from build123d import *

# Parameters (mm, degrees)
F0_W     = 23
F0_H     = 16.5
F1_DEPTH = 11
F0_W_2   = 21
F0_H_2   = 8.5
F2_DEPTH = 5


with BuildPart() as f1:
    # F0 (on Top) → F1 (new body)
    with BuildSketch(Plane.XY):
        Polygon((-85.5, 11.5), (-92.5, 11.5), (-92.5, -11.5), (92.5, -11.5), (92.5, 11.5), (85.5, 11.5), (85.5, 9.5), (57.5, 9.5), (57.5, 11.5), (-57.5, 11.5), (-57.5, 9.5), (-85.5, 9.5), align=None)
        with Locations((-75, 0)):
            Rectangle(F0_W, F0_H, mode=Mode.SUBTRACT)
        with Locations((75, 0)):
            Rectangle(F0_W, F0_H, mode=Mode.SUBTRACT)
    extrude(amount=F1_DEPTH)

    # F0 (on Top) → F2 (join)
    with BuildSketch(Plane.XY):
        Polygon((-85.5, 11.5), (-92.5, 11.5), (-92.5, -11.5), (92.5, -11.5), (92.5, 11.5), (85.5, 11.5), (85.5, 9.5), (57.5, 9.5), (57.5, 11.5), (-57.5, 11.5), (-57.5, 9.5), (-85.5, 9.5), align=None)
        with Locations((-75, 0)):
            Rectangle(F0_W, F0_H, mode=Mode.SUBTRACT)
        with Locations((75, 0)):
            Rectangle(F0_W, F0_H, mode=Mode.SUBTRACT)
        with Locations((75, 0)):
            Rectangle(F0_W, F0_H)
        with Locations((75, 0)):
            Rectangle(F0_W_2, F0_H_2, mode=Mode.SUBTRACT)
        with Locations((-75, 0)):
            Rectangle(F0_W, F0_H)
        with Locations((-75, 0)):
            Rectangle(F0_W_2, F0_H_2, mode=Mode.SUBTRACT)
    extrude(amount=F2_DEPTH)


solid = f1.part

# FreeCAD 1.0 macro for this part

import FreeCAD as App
import Part
import Sketcher

doc = App.newDocument("Part")
body = doc.addObject("PartDesign::Body", "Body")

# Sketch on XY plane
sketch1 = doc.addObject("Sketcher::SketchObject", "Sketch")
body.addObject(sketch1)
sketch1.AttachmentSupport = (doc.XY_Plane, [""])
sketch1.MapMode = "FlatFace"
sketch1.addGeometry(Part.LineSegment(App.Vector(-85.5, 11.5, 0), App.Vector(-92.5, 11.5, 0)), False)
sketch1.addGeometry(Part.LineSegment(App.Vector(-92.5, 11.5, 0), App.Vector(-92.5, -11.5, 0)), False)
sketch1.addGeometry(Part.LineSegment(App.Vector(-92.5, -11.5, 0), App.Vector(92.5, -11.5, 0)), False)
sketch1.addGeometry(Part.LineSegment(App.Vector(92.5, -11.5, 0), App.Vector(92.5, 11.5, 0)), False)
sketch1.addGeometry(Part.LineSegment(App.Vector(92.5, 11.5, 0), App.Vector(85.5, 11.5, 0)), False)
sketch1.addGeometry(Part.LineSegment(App.Vector(85.5, 11.5, 0), App.Vector(85.5, 9.5, 0)), False)
sketch1.addGeometry(Part.LineSegment(App.Vector(85.5, 9.5, 0), App.Vector(57.5, 9.5, 0)), False)
sketch1.addGeometry(Part.LineSegment(App.Vector(57.5, 9.5, 0), App.Vector(57.5, 11.5, 0)), False)
sketch1.addGeometry(Part.LineSegment(App.Vector(57.5, 11.5, 0), App.Vector(-57.5, 11.5, 0)), False)
sketch1.addGeometry(Part.LineSegment(App.Vector(-57.5, 11.5, 0), App.Vector(-57.5, 9.5, 0)), False)
sketch1.addGeometry(Part.LineSegment(App.Vector(-57.5, 9.5, 0), App.Vector(-85.5, 9.5, 0)), False)
sketch1.addGeometry(Part.LineSegment(App.Vector(-85.5, 9.5, 0), App.Vector(-85.5, 11.5, 0)), False)
sketch1.addGeometry(Part.LineSegment(App.Vector(-63.5, -8.25, 0), App.Vector(-86.5, -8.25, 0)), False)
sketch1.addGeometry(Part.LineSegment(App.Vector(-86.5, -8.25, 0), App.Vector(-86.5, 8.25, 0)), False)
sketch1.addGeometry(Part.LineSegment(App.Vector(-86.5, 8.25, 0), App.Vector(-63.5, 8.25, 0)), False)
sketch1.addGeometry(Part.LineSegment(App.Vector(-63.5, 8.25, 0), App.Vector(-63.5, -8.25, 0)), False)
sketch1.addGeometry(Part.LineSegment(App.Vector(86.5, -8.25, 0), App.Vector(63.5, -8.25, 0)), False)
sketch1.addGeometry(Part.LineSegment(App.Vector(63.5, -8.25, 0), App.Vector(63.5, 8.25, 0)), False)
sketch1.addGeometry(Part.LineSegment(App.Vector(63.5, 8.25, 0), App.Vector(86.5, 8.25, 0)), False)
sketch1.addGeometry(Part.LineSegment(App.Vector(86.5, 8.25, 0), App.Vector(86.5, -8.25, 0)), False)
sketch1.addConstraint(Sketcher.Constraint("Coincident", 0, 2, 1, 1))
sketch1.addConstraint(Sketcher.Constraint("Coincident", 1, 2, 2, 1))
sketch1.addConstraint(Sketcher.Constraint("Coincident", 2, 2, 3, 1))
sketch1.addConstraint(Sketcher.Constraint("Coincident", 3, 2, 4, 1))
sketch1.addConstraint(Sketcher.Constraint("Coincident", 4, 2, 5, 1))
sketch1.addConstraint(Sketcher.Constraint("Coincident", 5, 2, 6, 1))
sketch1.addConstraint(Sketcher.Constraint("Coincident", 6, 2, 7, 1))
sketch1.addConstraint(Sketcher.Constraint("Coincident", 7, 2, 8, 1))
sketch1.addConstraint(Sketcher.Constraint("Coincident", 8, 2, 9, 1))
sketch1.addConstraint(Sketcher.Constraint("Coincident", 9, 2, 10, 1))
sketch1.addConstraint(Sketcher.Constraint("Coincident", 10, 2, 11, 1))
sketch1.addConstraint(Sketcher.Constraint("Coincident", 11, 2, 0, 1))
sketch1.addConstraint(Sketcher.Constraint("Coincident", 12, 2, 13, 1))
sketch1.addConstraint(Sketcher.Constraint("Coincident", 13, 2, 14, 1))
sketch1.addConstraint(Sketcher.Constraint("Coincident", 14, 2, 15, 1))
sketch1.addConstraint(Sketcher.Constraint("Coincident", 15, 2, 12, 1))
sketch1.addConstraint(Sketcher.Constraint("Coincident", 16, 2, 17, 1))
sketch1.addConstraint(Sketcher.Constraint("Coincident", 17, 2, 18, 1))
sketch1.addConstraint(Sketcher.Constraint("Coincident", 18, 2, 19, 1))
sketch1.addConstraint(Sketcher.Constraint("Coincident", 19, 2, 16, 1))
sketch1.addConstraint(Sketcher.Constraint("Horizontal", 0))
sketch1.addConstraint(Sketcher.Constraint("Vertical", 1))
sketch1.addConstraint(Sketcher.Constraint("Horizontal", 2))
sketch1.addConstraint(Sketcher.Constraint("Vertical", 3))
sketch1.addConstraint(Sketcher.Constraint("Horizontal", 4))
sketch1.addConstraint(Sketcher.Constraint("Vertical", 5))
sketch1.addConstraint(Sketcher.Constraint("Horizontal", 6))
sketch1.addConstraint(Sketcher.Constraint("Vertical", 7))
sketch1.addConstraint(Sketcher.Constraint("Horizontal", 8))
sketch1.addConstraint(Sketcher.Constraint("Vertical", 9))
sketch1.addConstraint(Sketcher.Constraint("Horizontal", 10))
sketch1.addConstraint(Sketcher.Constraint("Vertical", 11))
sketch1.addConstraint(Sketcher.Constraint("Horizontal", 12))
sketch1.addConstraint(Sketcher.Constraint("Vertical", 13))
sketch1.addConstraint(Sketcher.Constraint("Horizontal", 14))
sketch1.addConstraint(Sketcher.Constraint("Vertical", 15))
sketch1.addConstraint(Sketcher.Constraint("Horizontal", 16))
sketch1.addConstraint(Sketcher.Constraint("Vertical", 17))
sketch1.addConstraint(Sketcher.Constraint("Horizontal", 18))
sketch1.addConstraint(Sketcher.Constraint("Vertical", 19))
sketch1.addConstraint(Sketcher.Constraint("Symmetric", 0, 2, 2, 2, -1, 1))
sketch1.addConstraint(Sketcher.Constraint("Symmetric", 14, 2, 16, 2, -1, 1))
sketch1.addConstraint(Sketcher.Constraint("Symmetric", 12, 2, 18, 2, -1, 1))
sketch1.addConstraint(Sketcher.Constraint("Symmetric", 6, 2, 9, 2, -2))
sketch1.addConstraint(Sketcher.Constraint("Symmetric", 4, 2, 11, 2, -2))
sketch1.addConstraint(Sketcher.Constraint("Horizontal", 4, 2, 7, 2))
sketch1.addConstraint(Sketcher.Constraint("Horizontal", 15, 2, 16, 2))
sketch1.addConstraint(Sketcher.Constraint("Equal", 18, 1))
sketch1.addConstraint(Sketcher.Constraint("DistanceX", 0, 2, 0, 1, 7.0))
sketch1.addConstraint(Sketcher.Constraint("DistanceX", 2, 1, 2, 2, 185.0))
sketch1.addConstraint(Sketcher.Constraint("DistanceX", 6, 2, 6, 1, 28.0))
sketch1.addConstraint(Sketcher.Constraint("DistanceX", 12, 2, 12, 1, 23.0))
sketch1.addConstraint(Sketcher.Constraint("DistanceY", 5, 2, 5, 1, 2.0))
sketch1.addConstraint(Sketcher.Constraint("DistanceY", 13, 1, 13, 2, 16.5))
sketch1.addConstraint(Sketcher.Constraint("DistanceX", 1, 2, 12, 2, 6.0))
pad1 = doc.addObject("PartDesign::Pad", "Pad")
body.addObject(pad1)
pad1.Profile = sketch1
pad1.Length = 11

# Sketch on XY plane
sketch2 = doc.addObject("Sketcher::SketchObject", "Sketch001")
body.addObject(sketch2)
sketch2.AttachmentSupport = (doc.XY_Plane, [""])
sketch2.MapMode = "FlatFace"
sketch2.addGeometry(Part.LineSegment(App.Vector(-85.5, 11.5, 0), App.Vector(-92.5, 11.5, 0)), False)
sketch2.addGeometry(Part.LineSegment(App.Vector(-92.5, 11.5, 0), App.Vector(-92.5, -11.5, 0)), False)
sketch2.addGeometry(Part.LineSegment(App.Vector(-92.5, -11.5, 0), App.Vector(92.5, -11.5, 0)), False)
sketch2.addGeometry(Part.LineSegment(App.Vector(92.5, -11.5, 0), App.Vector(92.5, 11.5, 0)), False)
sketch2.addGeometry(Part.LineSegment(App.Vector(92.5, 11.5, 0), App.Vector(85.5, 11.5, 0)), False)
sketch2.addGeometry(Part.LineSegment(App.Vector(85.5, 11.5, 0), App.Vector(85.5, 9.5, 0)), False)
sketch2.addGeometry(Part.LineSegment(App.Vector(85.5, 9.5, 0), App.Vector(57.5, 9.5, 0)), False)
sketch2.addGeometry(Part.LineSegment(App.Vector(57.5, 9.5, 0), App.Vector(57.5, 11.5, 0)), False)
sketch2.addGeometry(Part.LineSegment(App.Vector(57.5, 11.5, 0), App.Vector(-57.5, 11.5, 0)), False)
sketch2.addGeometry(Part.LineSegment(App.Vector(-57.5, 11.5, 0), App.Vector(-57.5, 9.5, 0)), False)
sketch2.addGeometry(Part.LineSegment(App.Vector(-57.5, 9.5, 0), App.Vector(-85.5, 9.5, 0)), False)
sketch2.addGeometry(Part.LineSegment(App.Vector(-85.5, 9.5, 0), App.Vector(-85.5, 11.5, 0)), False)
sketch2.addGeometry(Part.LineSegment(App.Vector(-64.5, -4.25, 0), App.Vector(-85.5, -4.25, 0)), False)
sketch2.addGeometry(Part.LineSegment(App.Vector(-85.5, -4.25, 0), App.Vector(-85.5, 4.25, 0)), False)
sketch2.addGeometry(Part.LineSegment(App.Vector(-85.5, 4.25, 0), App.Vector(-64.5, 4.25, 0)), False)
sketch2.addGeometry(Part.LineSegment(App.Vector(-64.5, 4.25, 0), App.Vector(-64.5, -4.25, 0)), False)
sketch2.addGeometry(Part.LineSegment(App.Vector(85.5, -4.25, 0), App.Vector(64.5, -4.25, 0)), False)
sketch2.addGeometry(Part.LineSegment(App.Vector(64.5, -4.25, 0), App.Vector(64.5, 4.25, 0)), False)
sketch2.addGeometry(Part.LineSegment(App.Vector(64.5, 4.25, 0), App.Vector(85.5, 4.25, 0)), False)
sketch2.addGeometry(Part.LineSegment(App.Vector(85.5, 4.25, 0), App.Vector(85.5, -4.25, 0)), False)
sketch2.addConstraint(Sketcher.Constraint("Coincident", 0, 2, 1, 1))
sketch2.addConstraint(Sketcher.Constraint("Coincident", 1, 2, 2, 1))
sketch2.addConstraint(Sketcher.Constraint("Coincident", 2, 2, 3, 1))
sketch2.addConstraint(Sketcher.Constraint("Coincident", 3, 2, 4, 1))
sketch2.addConstraint(Sketcher.Constraint("Coincident", 4, 2, 5, 1))
sketch2.addConstraint(Sketcher.Constraint("Coincident", 5, 2, 6, 1))
sketch2.addConstraint(Sketcher.Constraint("Coincident", 6, 2, 7, 1))
sketch2.addConstraint(Sketcher.Constraint("Coincident", 7, 2, 8, 1))
sketch2.addConstraint(Sketcher.Constraint("Coincident", 8, 2, 9, 1))
sketch2.addConstraint(Sketcher.Constraint("Coincident", 9, 2, 10, 1))
sketch2.addConstraint(Sketcher.Constraint("Coincident", 10, 2, 11, 1))
sketch2.addConstraint(Sketcher.Constraint("Coincident", 11, 2, 0, 1))
sketch2.addConstraint(Sketcher.Constraint("Coincident", 12, 2, 13, 1))
sketch2.addConstraint(Sketcher.Constraint("Coincident", 13, 2, 14, 1))
sketch2.addConstraint(Sketcher.Constraint("Coincident", 14, 2, 15, 1))
sketch2.addConstraint(Sketcher.Constraint("Coincident", 15, 2, 12, 1))
sketch2.addConstraint(Sketcher.Constraint("Coincident", 16, 2, 17, 1))
sketch2.addConstraint(Sketcher.Constraint("Coincident", 17, 2, 18, 1))
sketch2.addConstraint(Sketcher.Constraint("Coincident", 18, 2, 19, 1))
sketch2.addConstraint(Sketcher.Constraint("Coincident", 19, 2, 16, 1))
sketch2.addConstraint(Sketcher.Constraint("Horizontal", 0))
sketch2.addConstraint(Sketcher.Constraint("Vertical", 1))
sketch2.addConstraint(Sketcher.Constraint("Horizontal", 2))
sketch2.addConstraint(Sketcher.Constraint("Vertical", 3))
sketch2.addConstraint(Sketcher.Constraint("Horizontal", 4))
sketch2.addConstraint(Sketcher.Constraint("Vertical", 5))
sketch2.addConstraint(Sketcher.Constraint("Horizontal", 6))
sketch2.addConstraint(Sketcher.Constraint("Vertical", 7))
sketch2.addConstraint(Sketcher.Constraint("Horizontal", 8))
sketch2.addConstraint(Sketcher.Constraint("Vertical", 9))
sketch2.addConstraint(Sketcher.Constraint("Horizontal", 10))
sketch2.addConstraint(Sketcher.Constraint("Vertical", 11))
sketch2.addConstraint(Sketcher.Constraint("Horizontal", 12))
sketch2.addConstraint(Sketcher.Constraint("Vertical", 13))
sketch2.addConstraint(Sketcher.Constraint("Horizontal", 14))
sketch2.addConstraint(Sketcher.Constraint("Vertical", 15))
sketch2.addConstraint(Sketcher.Constraint("Horizontal", 16))
sketch2.addConstraint(Sketcher.Constraint("Vertical", 17))
sketch2.addConstraint(Sketcher.Constraint("Horizontal", 18))
sketch2.addConstraint(Sketcher.Constraint("Vertical", 19))
sketch2.addConstraint(Sketcher.Constraint("Symmetric", 0, 2, 2, 2, -1, 1))
sketch2.addConstraint(Sketcher.Constraint("Symmetric", 14, 2, 16, 2, -1, 1))
sketch2.addConstraint(Sketcher.Constraint("Symmetric", 12, 2, 18, 2, -1, 1))
sketch2.addConstraint(Sketcher.Constraint("Symmetric", 6, 2, 9, 2, -2))
sketch2.addConstraint(Sketcher.Constraint("Symmetric", 4, 2, 11, 2, -2))
sketch2.addConstraint(Sketcher.Constraint("Horizontal", 4, 2, 7, 2))
sketch2.addConstraint(Sketcher.Constraint("Horizontal", 15, 2, 16, 2))
sketch2.addConstraint(Sketcher.Constraint("Vertical", 11, 2, 12, 2))
sketch2.addConstraint(Sketcher.Constraint("DistanceX", 0, 2, 0, 1, 7.0))
sketch2.addConstraint(Sketcher.Constraint("DistanceX", 2, 1, 2, 2, 185.0))
sketch2.addConstraint(Sketcher.Constraint("DistanceX", 6, 2, 6, 1, 28.0))
sketch2.addConstraint(Sketcher.Constraint("DistanceX", 12, 2, 12, 1, 21.0))
sketch2.addConstraint(Sketcher.Constraint("DistanceY", 1, 2, 1, 1, 23.0))
sketch2.addConstraint(Sketcher.Constraint("DistanceY", 5, 2, 5, 1, 2.0))
sketch2.addConstraint(Sketcher.Constraint("DistanceY", 13, 1, 13, 2, 8.5))
pad2 = doc.addObject("PartDesign::Pad", "Pad001")
body.addObject(pad2)
pad2.Profile = sketch2
pad2.Length = 5

doc.recompute()
